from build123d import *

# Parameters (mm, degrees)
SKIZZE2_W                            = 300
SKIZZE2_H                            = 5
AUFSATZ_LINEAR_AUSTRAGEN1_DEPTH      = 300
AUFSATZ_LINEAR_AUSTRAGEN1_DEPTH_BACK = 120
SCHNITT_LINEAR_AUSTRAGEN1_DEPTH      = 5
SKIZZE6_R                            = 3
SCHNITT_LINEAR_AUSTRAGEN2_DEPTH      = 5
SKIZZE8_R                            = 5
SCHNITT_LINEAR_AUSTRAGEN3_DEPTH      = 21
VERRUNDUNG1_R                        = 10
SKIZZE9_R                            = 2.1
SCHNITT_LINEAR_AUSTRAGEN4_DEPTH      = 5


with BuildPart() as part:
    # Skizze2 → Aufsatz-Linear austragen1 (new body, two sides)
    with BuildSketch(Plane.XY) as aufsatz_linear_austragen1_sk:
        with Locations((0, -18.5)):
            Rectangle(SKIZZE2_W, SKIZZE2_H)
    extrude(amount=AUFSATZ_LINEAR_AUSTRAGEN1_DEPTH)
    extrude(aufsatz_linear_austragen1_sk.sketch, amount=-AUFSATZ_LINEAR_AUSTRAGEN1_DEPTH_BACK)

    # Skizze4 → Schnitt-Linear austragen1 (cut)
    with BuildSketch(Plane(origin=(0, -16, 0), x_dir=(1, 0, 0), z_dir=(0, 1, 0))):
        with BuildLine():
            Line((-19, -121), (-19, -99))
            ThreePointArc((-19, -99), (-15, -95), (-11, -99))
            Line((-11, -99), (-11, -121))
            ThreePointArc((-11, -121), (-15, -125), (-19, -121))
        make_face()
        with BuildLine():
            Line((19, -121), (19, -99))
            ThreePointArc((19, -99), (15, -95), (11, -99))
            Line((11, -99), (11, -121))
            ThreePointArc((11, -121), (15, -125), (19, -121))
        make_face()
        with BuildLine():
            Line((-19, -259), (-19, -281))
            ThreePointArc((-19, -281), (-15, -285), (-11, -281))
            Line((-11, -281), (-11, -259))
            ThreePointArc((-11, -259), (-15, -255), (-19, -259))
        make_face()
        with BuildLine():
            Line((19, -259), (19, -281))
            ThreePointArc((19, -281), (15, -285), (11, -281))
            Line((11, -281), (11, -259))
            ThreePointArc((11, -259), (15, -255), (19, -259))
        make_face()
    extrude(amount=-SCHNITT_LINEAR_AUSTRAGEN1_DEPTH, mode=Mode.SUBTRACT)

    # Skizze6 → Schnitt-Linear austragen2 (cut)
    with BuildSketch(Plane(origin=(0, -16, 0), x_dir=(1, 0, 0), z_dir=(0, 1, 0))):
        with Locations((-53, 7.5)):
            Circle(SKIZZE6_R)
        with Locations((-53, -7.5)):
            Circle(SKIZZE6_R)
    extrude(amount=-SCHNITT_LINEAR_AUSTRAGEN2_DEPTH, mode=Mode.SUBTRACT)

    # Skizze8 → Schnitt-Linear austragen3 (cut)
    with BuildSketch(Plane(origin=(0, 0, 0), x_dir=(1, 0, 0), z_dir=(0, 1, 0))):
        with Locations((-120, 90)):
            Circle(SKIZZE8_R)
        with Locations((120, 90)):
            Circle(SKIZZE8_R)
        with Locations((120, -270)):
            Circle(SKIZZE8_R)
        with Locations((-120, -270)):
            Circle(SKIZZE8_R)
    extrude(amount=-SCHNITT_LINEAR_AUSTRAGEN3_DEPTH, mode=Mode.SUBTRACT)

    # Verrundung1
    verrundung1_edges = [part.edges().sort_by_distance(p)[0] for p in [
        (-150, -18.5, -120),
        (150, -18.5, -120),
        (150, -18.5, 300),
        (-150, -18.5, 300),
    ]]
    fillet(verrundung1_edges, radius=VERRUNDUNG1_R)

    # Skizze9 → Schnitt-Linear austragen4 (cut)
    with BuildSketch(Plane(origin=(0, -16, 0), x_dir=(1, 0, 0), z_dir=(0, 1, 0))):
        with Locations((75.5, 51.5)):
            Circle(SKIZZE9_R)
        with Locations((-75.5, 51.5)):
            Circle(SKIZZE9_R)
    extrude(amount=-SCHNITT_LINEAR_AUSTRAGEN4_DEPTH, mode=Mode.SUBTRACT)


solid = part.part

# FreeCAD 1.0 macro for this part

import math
import FreeCAD as App
import Part
import Sketcher
from FreeCAD import Vector
Q = App.Units.Quantity


def edges_at(feature, points):
    """Names of the edges that pass closest to the given points."""
    edges = feature.Shape.Edges
    near = lambda p: min(range(len(edges)), key=lambda i: edges[i].distToShape(Part.Vertex(*p))[0])
    return sorted({f"Edge{near(p) + 1}" for p in points})

doc = App.newDocument("Part")
body = doc.addObject("PartDesign::Body", "Body")

# Sketch on XY plane
sketch1 = body.newObject("Sketcher::SketchObject", "Sketch")
sketch1.AttachmentSupport = (doc.getObject("XY_Plane"), [""])
sketch1.MapMode = "FlatFace"
sketch1.addGeometry([
    Part.LineSegment(Vector(-150, -16, 0), Vector(-150, -21, 0)),
    Part.LineSegment(Vector(-150, -21, 0), Vector(150, -21, 0)),
    Part.LineSegment(Vector(150, -21, 0), Vector(150, -16, 0)),
    Part.LineSegment(Vector(150, -16, 0), Vector(-150, -16, 0)),
], False)
sketch1.addConstraint([
    Sketcher.Constraint("Coincident", 0, 2, 1, 1),
    Sketcher.Constraint("Coincident", 1, 2, 2, 1),
    Sketcher.Constraint("Coincident", 2, 2, 3, 1),
    Sketcher.Constraint("Coincident", 3, 2, 0, 1),
    Sketcher.Constraint("Vertical", 0),
    Sketcher.Constraint("Horizontal", 1),
    Sketcher.Constraint("Vertical", 2),
    Sketcher.Constraint("Horizontal", 3),
    Sketcher.Constraint("DistanceX", 1, 1, 1, 2, Q("300 mm")),
    Sketcher.Constraint("DistanceY", 0, 2, 0, 1, Q("5 mm")),
    Sketcher.Constraint("DistanceX", 0, 2, -1, 1, Q("150 mm")),
    Sketcher.Constraint("DistanceY", 0, 2, -1, 1, Q("21 mm")),
])
pad1 = body.newObject("PartDesign::Pad", "Pad")
pad1.Profile = sketch1
pad1.Type = "TwoLengths"
pad1.Length = 300
pad1.Length2 = 120

# Sketch on XZ plane
sketch2 = body.newObject("Sketcher::SketchObject", "Sketch001")
sketch2.AttachmentSupport = (doc.getObject("XZ_Plane"), [""])
sketch2.MapMode = "FlatFace"
sketch2.AttachmentOffset = App.Placement(Vector(0, 0, 16), App.Rotation())
sketch2.addGeometry([
    Part.LineSegment(Vector(-19, 99, 0), Vector(-19, 121, 0)),  # 0
    Part.ArcOfCircle(Part.Circle(Vector(-15, 121, 0), Vector(0, 0, 1), 4), math.radians(0), math.radians(180)),  # 1
    Part.LineSegment(Vector(-11, 121, 0), Vector(-11, 99, 0)),  # 2
    Part.ArcOfCircle(Part.Circle(Vector(-15, 99, 0), Vector(0, 0, 1), 4), math.radians(180), math.radians(360)),  # 3
    Part.LineSegment(Vector(19, 121, 0), Vector(19, 99, 0)),  # 4
    Part.ArcOfCircle(Part.Circle(Vector(15, 99, 0), Vector(0, 0, 1), 4), math.radians(180), math.radians(360)),  # 5
    Part.LineSegment(Vector(11, 99, 0), Vector(11, 121, 0)),  # 6
    Part.ArcOfCircle(Part.Circle(Vector(15, 121, 0), Vector(0, 0, 1), 4), math.radians(0), math.radians(180)),  # 7
    Part.LineSegment(Vector(-19, 259, 0), Vector(-19, 281, 0)),  # 8
    Part.ArcOfCircle(Part.Circle(Vector(-15, 281, 0), Vector(0, 0, 1), 4), math.radians(0), math.radians(180)),  # 9
    Part.LineSegment(Vector(-11, 281, 0), Vector(-11, 259, 0)),  # 10
    Part.ArcOfCircle(Part.Circle(Vector(-15, 259, 0), Vector(0, 0, 1), 4), math.radians(180), math.radians(360)),  # 11
    Part.LineSegment(Vector(19, 281, 0), Vector(19, 259, 0)),  # 12
    Part.ArcOfCircle(Part.Circle(Vector(15, 259, 0), Vector(0, 0, 1), 4), math.radians(180), math.radians(360)),  # 13
    Part.LineSegment(Vector(11, 259, 0), Vector(11, 281, 0)),  # 14
    Part.ArcOfCircle(Part.Circle(Vector(15, 281, 0), Vector(0, 0, 1), 4), math.radians(0), math.radians(180)),  # 15
], False)
sketch2.addConstraint([
    Sketcher.Constraint("Tangent", 0, 2, 1, 2),
    Sketcher.Constraint("Tangent", 1, 1, 2, 1),
    Sketcher.Constraint("Tangent", 2, 2, 3, 2),
    Sketcher.Constraint("Tangent", 3, 1, 0, 1),
    Sketcher.Constraint("Tangent", 4, 2, 5, 2),
    Sketcher.Constraint("Tangent", 5, 1, 6, 1),
    Sketcher.Constraint("Tangent", 6, 2, 7, 2),
    Sketcher.Constraint("Tangent", 7, 1, 4, 1),
    Sketcher.Constraint("Tangent", 8, 2, 9, 2),
    Sketcher.Constraint("Tangent", 9, 1, 10, 1),
    Sketcher.Constraint("Tangent", 10, 2, 11, 2),
    Sketcher.Constraint("Tangent", 11, 1, 8, 1),
    Sketcher.Constraint("Tangent", 12, 2, 13, 2),
    Sketcher.Constraint("Tangent", 13, 1, 14, 1),
    Sketcher.Constraint("Tangent", 14, 2, 15, 2),
    Sketcher.Constraint("Tangent", 15, 1, 12, 1),
    Sketcher.Constraint("Vertical", 0),
    Sketcher.Constraint("Vertical", 2),
    Sketcher.Constraint("Vertical", 4),
    Sketcher.Constraint("Vertical", 6),
    Sketcher.Constraint("Vertical", 8),
    Sketcher.Constraint("Vertical", 10),
    Sketcher.Constraint("Vertical", 12),
    Sketcher.Constraint("Vertical", 14),
    Sketcher.Constraint("Equal", 3, 5),
    Sketcher.Constraint("Equal", 7, 9),
    Sketcher.Constraint("Equal", 11, 13),
    Sketcher.Constraint("Symmetric", 3, 3, 5, 3, -2),
    Sketcher.Constraint("Symmetric", 11, 3, 13, 3, -2),
    Sketcher.Constraint("Horizontal", 1, 3, 7, 3),
    Sketcher.Constraint("Horizontal", 9, 3, 15, 3),
    Sketcher.Constraint("Vertical", 3, 3, 9, 3),
    Sketcher.Constraint("Equal", 6, 8),
    Sketcher.Constraint("Radius", 1, Q("4 mm")),
    Sketcher.Constraint("DistanceY", 0, 1, 0, 2, Q("22 mm")),
    Sketcher.Constraint("DistanceX", 1, 3, -1, 1, Q("15 mm")),
    Sketcher.Constraint("DistanceY", -1, 1, 1, 3, Q("121 mm")),
    Sketcher.Constraint("DistanceY", -1, 1, 9, 3, Q("281 mm")),
])
pocket1 = body.newObject("PartDesign::Pocket", "Pocket")
pocket1.Profile = sketch2
pocket1.Length = 5
pocket1.Reversed = True

# Sketch on XZ plane
sketch3 = body.newObject("Sketcher::SketchObject", "Sketch002")
sketch3.AttachmentSupport = (doc.getObject("XZ_Plane"), [""])
sketch3.MapMode = "FlatFace"
sketch3.AttachmentOffset = App.Placement(Vector(0, 0, 16), App.Rotation())
sketch3.addGeometry([
    Part.Circle(Vector(-53, -7.5, 0), Vector(0, 0, 1), 3),
    Part.Circle(Vector(-53, 7.5, 0), Vector(0, 0, 1), 3),
], False)
sketch3.addConstraint([
    Sketcher.Constraint("Equal", 0, 1),
    Sketcher.Constraint("Symmetric", 0, 3, 1, 3, -1),
    Sketcher.Constraint("Diameter", 0, Q("6 mm")),
    Sketcher.Constraint("DistanceX", 0, 3, -1, 1, Q("53 mm")),
    Sketcher.Constraint("DistanceY", 0, 3, 1, 3, Q("15 mm")),
])
pocket2 = body.newObject("PartDesign::Pocket", "Pocket001")
pocket2.Profile = sketch3
pocket2.Length = 5
pocket2.Reversed = True

# Sketch on XZ plane
sketch4 = body.newObject("Sketcher::SketchObject", "Sketch003")
sketch4.AttachmentSupport = (doc.getObject("XZ_Plane"), [""])
sketch4.MapMode = "FlatFace"
sketch4.addGeometry([
    Part.Circle(Vector(-120, -90, 0), Vector(0, 0, 1), 5),
    Part.Circle(Vector(120, -90, 0), Vector(0, 0, 1), 5),
    Part.Circle(Vector(120, 270, 0), Vector(0, 0, 1), 5),
    Part.Circle(Vector(-120, 270, 0), Vector(0, 0, 1), 5),
], False)
sketch4.addConstraint([
    Sketcher.Constraint("Equal", 0, 1),
    Sketcher.Constraint("Equal", 1, 2),
    Sketcher.Constraint("Equal", 2, 3),
    Sketcher.Constraint("Symmetric", 0, 3, 1, 3, -2),
    Sketcher.Constraint("Symmetric", 2, 3, 3, 3, -2),
    Sketcher.Constraint("Vertical", 1, 3, 2, 3),
    Sketcher.Constraint("Diameter", 0, Q("10 mm")),
    Sketcher.Constraint("DistanceX", 0, 3, -1, 1, Q("120 mm")),
    Sketcher.Constraint("DistanceY", 0, 3, -1, 1, Q("90 mm")),
    Sketcher.Constraint("DistanceY", -1, 1, 2, 3, Q("270 mm")),
])
pocket3 = body.newObject("PartDesign::Pocket", "Pocket002")
pocket3.Profile = sketch4
pocket3.Length = 21
pocket3.Reversed = True
doc.recompute()

fillet = body.newObject("PartDesign::Fillet", "Fillet")
fillet.Base = (pocket3, edges_at(pocket3, [
    (-150, -18.5, -120),
    (150, -18.5, -120),
    (150, -18.5, 300),
    (-150, -18.5, 300),
]))
fillet.Radius = 10

# Sketch on XZ plane
sketch5 = body.newObject("Sketcher::SketchObject", "Sketch004")
sketch5.AttachmentSupport = (doc.getObject("XZ_Plane"), [""])
sketch5.MapMode = "FlatFace"
sketch5.AttachmentOffset = App.Placement(Vector(0, 0, 16), App.Rotation())
sketch5.addGeometry([
    Part.Circle(Vector(75.5, -51.5, 0), Vector(0, 0, 1), 2.1),
    Part.Circle(Vector(-75.5, -51.5, 0), Vector(0, 0, 1), 2.1),
], False)
sketch5.addConstraint([
    Sketcher.Constraint("Equal", 0, 1),
    Sketcher.Constraint("Symmetric", 0, 3, 1, 3, -2),
    Sketcher.Constraint("Diameter", 0, Q("4.2 mm")),
    Sketcher.Constraint("DistanceX", 1, 3, 0, 3, Q("151 mm")),
    Sketcher.Constraint("DistanceY", 0, 3, -1, 1, Q("51.5 mm")),
])
pocket4 = body.newObject("PartDesign::Pocket", "Pocket003")
pocket4.Profile = sketch5
pocket4.Length = 5
pocket4.Reversed = True

doc.recompute()
